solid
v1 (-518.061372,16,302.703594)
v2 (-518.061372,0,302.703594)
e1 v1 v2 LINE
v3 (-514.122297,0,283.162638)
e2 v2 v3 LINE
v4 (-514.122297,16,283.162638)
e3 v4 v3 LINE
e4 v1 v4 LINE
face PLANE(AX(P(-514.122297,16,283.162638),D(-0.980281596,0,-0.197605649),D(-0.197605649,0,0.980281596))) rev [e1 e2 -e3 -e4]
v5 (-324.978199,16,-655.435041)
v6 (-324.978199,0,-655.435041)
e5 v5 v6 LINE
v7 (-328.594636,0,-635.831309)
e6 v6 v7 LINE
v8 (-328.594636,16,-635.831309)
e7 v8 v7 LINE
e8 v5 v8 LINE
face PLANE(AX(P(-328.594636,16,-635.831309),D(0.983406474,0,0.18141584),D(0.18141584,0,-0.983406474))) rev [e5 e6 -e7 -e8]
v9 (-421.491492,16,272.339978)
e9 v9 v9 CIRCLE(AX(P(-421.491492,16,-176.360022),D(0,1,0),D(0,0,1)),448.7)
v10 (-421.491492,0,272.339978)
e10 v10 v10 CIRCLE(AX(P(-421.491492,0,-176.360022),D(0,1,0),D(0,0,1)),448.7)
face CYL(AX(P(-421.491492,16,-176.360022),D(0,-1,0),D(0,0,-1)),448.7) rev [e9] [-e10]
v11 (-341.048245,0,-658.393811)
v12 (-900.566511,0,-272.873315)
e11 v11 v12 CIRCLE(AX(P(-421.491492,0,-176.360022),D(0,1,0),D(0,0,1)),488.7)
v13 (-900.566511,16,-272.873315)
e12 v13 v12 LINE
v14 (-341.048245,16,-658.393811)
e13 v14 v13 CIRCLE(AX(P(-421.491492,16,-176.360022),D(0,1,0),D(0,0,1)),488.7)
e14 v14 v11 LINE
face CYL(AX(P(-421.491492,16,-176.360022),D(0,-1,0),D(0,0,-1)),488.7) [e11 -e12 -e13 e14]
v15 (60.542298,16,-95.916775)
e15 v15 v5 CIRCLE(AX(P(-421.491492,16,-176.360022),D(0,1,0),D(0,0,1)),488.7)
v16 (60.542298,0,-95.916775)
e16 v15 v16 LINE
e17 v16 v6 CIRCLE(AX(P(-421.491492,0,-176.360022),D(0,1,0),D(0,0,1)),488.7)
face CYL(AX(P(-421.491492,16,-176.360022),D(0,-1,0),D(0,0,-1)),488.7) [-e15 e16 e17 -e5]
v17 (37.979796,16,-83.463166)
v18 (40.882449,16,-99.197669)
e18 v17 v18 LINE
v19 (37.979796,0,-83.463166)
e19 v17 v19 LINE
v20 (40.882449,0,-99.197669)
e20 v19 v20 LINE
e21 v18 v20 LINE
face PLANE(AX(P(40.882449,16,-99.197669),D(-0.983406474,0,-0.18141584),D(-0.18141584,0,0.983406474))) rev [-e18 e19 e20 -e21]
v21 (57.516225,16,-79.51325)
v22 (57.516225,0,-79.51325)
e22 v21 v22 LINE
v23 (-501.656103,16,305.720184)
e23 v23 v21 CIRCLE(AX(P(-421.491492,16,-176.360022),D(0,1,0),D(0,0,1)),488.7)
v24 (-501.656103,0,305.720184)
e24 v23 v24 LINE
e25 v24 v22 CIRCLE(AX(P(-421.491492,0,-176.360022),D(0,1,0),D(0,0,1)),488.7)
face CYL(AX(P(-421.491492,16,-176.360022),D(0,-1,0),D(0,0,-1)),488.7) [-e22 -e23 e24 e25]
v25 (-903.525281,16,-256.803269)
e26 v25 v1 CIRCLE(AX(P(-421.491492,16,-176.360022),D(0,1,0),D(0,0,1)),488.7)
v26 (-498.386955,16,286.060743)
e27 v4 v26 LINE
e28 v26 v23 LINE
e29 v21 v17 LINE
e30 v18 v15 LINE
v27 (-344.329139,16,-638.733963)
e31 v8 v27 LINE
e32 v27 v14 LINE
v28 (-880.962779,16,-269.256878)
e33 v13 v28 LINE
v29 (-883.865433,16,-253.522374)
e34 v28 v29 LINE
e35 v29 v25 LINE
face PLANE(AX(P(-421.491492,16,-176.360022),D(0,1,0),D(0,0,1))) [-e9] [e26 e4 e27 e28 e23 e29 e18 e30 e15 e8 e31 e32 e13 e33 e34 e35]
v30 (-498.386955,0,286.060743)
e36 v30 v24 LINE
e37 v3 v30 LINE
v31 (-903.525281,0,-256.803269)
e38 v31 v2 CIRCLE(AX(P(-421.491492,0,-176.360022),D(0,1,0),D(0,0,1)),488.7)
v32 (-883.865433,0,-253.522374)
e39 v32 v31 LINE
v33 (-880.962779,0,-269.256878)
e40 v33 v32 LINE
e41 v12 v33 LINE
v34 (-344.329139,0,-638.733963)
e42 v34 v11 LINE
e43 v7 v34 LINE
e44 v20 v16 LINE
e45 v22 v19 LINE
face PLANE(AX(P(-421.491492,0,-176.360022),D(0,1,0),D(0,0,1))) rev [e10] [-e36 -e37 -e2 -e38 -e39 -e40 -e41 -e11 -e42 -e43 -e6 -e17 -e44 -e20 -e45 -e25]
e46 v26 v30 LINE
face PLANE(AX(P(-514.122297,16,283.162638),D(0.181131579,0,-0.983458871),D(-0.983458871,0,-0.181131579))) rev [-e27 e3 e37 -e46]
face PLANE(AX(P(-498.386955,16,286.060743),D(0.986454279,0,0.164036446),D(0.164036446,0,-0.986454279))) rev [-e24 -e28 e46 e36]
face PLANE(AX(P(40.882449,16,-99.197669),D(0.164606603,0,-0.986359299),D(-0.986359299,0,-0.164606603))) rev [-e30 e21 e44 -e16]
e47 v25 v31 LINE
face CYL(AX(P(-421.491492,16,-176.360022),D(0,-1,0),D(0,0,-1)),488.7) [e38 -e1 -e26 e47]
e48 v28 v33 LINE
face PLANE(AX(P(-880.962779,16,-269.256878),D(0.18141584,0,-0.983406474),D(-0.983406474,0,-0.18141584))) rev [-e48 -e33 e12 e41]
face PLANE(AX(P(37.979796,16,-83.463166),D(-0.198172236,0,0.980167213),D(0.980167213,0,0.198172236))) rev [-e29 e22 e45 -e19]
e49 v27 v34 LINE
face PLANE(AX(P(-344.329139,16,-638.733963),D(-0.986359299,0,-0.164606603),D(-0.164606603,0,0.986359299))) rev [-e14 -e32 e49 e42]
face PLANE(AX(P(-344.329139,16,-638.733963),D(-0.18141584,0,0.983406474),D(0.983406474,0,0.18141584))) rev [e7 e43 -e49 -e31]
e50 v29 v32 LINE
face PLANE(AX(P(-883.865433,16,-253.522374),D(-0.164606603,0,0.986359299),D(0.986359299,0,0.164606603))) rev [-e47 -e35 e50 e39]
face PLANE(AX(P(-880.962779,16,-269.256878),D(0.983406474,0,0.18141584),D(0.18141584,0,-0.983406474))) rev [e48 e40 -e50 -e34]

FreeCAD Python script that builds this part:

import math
import FreeCAD as App
import Part
import Sketcher

V = App.Vector
Q = App.Units.Quantity

doc = App.newDocument("Part")
body = doc.addObject("PartDesign::Body", "Body")

sketch1 = body.newObject("Sketcher::SketchObject", "Sketch")
sketch1.AttachmentSupport = (doc.getObject("XZ_Plane"), [""])
sketch1.MapMode = "FlatFace"
sketch1.addGeometry(Part.LineSegment(V(-328.594636, -635.831309, 0), V(-344.329139, -638.733963, 0)), False)
sketch1.addGeometry(Part.LineSegment(V(-344.329139, -638.733963, 0), V(-341.048245, -658.393811, 0)), False)
sketch1.addGeometry(Part.ArcOfCircle(Part.Circle(V(-421.491492, -176.360022, 0), V(0, 0, 1), 488.7), math.radians(-168.609789), math.radians(-80.525618)), False)
sketch1.addGeometry(Part.LineSegment(V(-900.566511, -272.873315, 0), V(-880.962779, -269.256878, 0)), False)
sketch1.addGeometry(Part.LineSegment(V(-880.962779, -269.256878, 0), V(-883.865433, -253.522374, 0)), False)
sketch1.addGeometry(Part.LineSegment(V(-883.865433, -253.522374, 0), V(-903.525281, -256.803269, 0)), False)
sketch1.addGeometry(Part.ArcOfCircle(Part.Circle(V(-421.491492, -176.360022, 0), V(0, 0, 1), 488.7), math.radians(101.396979), math.radians(189.474382)), False)
sketch1.addGeometry(Part.LineSegment(V(-518.061372, 302.703594, 0), V(-514.122297, 283.162638, 0)), False)
sketch1.addGeometry(Part.LineSegment(V(-514.122297, 283.162638, 0), V(-498.386955, 286.060743, 0)), False)
sketch1.addGeometry(Part.LineSegment(V(-498.386955, 286.060743, 0), V(-501.656103, 305.720184, 0)), False)
sketch1.addGeometry(Part.ArcOfCircle(Part.Circle(V(-421.491492, -176.360022, 0), V(0, 0, 1), 488.7), math.radians(11.430097), math.radians(99.441264)), False)
sketch1.addGeometry(Part.LineSegment(V(57.516225, -79.51325, 0), V(37.979796, -83.463166, 0)), False)
sketch1.addGeometry(Part.LineSegment(V(37.979796, -83.463166, 0), V(40.882449, -99.197669, 0)), False)
sketch1.addGeometry(Part.LineSegment(V(40.882449, -99.197669, 0), V(60.542298, -95.916775, 0)), False)
sketch1.addGeometry(Part.ArcOfCircle(Part.Circle(V(-421.491492, -176.360022, 0), V(0, 0, 1), 488.7), math.radians(-78.609789), math.radians(9.474382)), False)
sketch1.addGeometry(Part.LineSegment(V(-324.978199, -655.435041, 0), V(-328.594636, -635.831309, 0)), False)
sketch1.addGeometry(Part.Circle(V(-421.491492, -176.360022, 0), V(0, 0, 1), 448.7), False)
sketch1.addConstraint(Sketcher.Constraint("Coincident", 0, 2, 1, 1))
sketch1.addConstraint(Sketcher.Constraint("Coincident", 1, 2, 2, 2))
sketch1.addConstraint(Sketcher.Constraint("Coincident", 2, 1, 3, 1))
sketch1.addConstraint(Sketcher.Constraint("Coincident", 3, 2, 4, 1))
sketch1.addConstraint(Sketcher.Constraint("Coincident", 4, 2, 5, 1))
sketch1.addConstraint(Sketcher.Constraint("Coincident", 5, 2, 6, 2))
sketch1.addConstraint(Sketcher.Constraint("Coincident", 6, 1, 7, 1))
sketch1.addConstraint(Sketcher.Constraint("Coincident", 7, 2, 8, 1))
sketch1.addConstraint(Sketcher.Constraint("Coincident", 8, 2, 9, 1))
sketch1.addConstraint(Sketcher.Constraint("Coincident", 9, 2, 10, 2))
sketch1.addConstraint(Sketcher.Constraint("Coincident", 10, 1, 11, 1))
sketch1.addConstraint(Sketcher.Constraint("Coincident", 11, 2, 12, 1))
sketch1.addConstraint(Sketcher.Constraint("Coincident", 12, 2, 13, 1))
sketch1.addConstraint(Sketcher.Constraint("Coincident", 13, 2, 14, 2))
sketch1.addConstraint(Sketcher.Constraint("Coincident", 14, 1, 15, 1))
sketch1.addConstraint(Sketcher.Constraint("Coincident", 15, 2, 0, 1))
sketch1.addConstraint(Sketcher.Constraint("Coincident", 6, 3, 2, 3))
sketch1.addConstraint(Sketcher.Constraint("Coincident", 10, 3, 2, 3))
sketch1.addConstraint(Sketcher.Constraint("Coincident", 14, 3, 2, 3))
sketch1.addConstraint(Sketcher.Constraint("Coincident", 16, 3, 2, 3))
sketch1.addConstraint(Sketcher.Constraint("Equal", 2, 6))
sketch1.addConstraint(Sketcher.Constraint("Equal", 6, 10))
sketch1.addConstraint(Sketcher.Constraint("Equal", 10, 14))
sketch1.addConstraint(Sketcher.Constraint("Parallel", 0, 3))
sketch1.addConstraint(Sketcher.Constraint("Perpendicular", 3, 4))
sketch1.addConstraint(Sketcher.Constraint("Perpendicular", 1, 5))
sketch1.addConstraint(Sketcher.Constraint("Parallel", 4, 12))
sketch1.addConstraint(Sketcher.Constraint("Parallel", 5, 13))
sketch1.addConstraint(Sketcher.Constraint("Parallel", 12, 15))
sketch1.addConstraint(Sketcher.Constraint("Equal", 0, 4))
sketch1.addConstraint(Sketcher.Constraint("Equal", 1, 5))
sketch1.addConstraint(Sketcher.Constraint("Equal", 4, 8))
sketch1.addConstraint(Sketcher.Constraint("Equal", 5, 11))
sketch1.addConstraint(Sketcher.Constraint("Equal", 8, 12))
sketch1.addConstraint(Sketcher.Constraint("Equal", 11, 13))
sketch1.addConstraint(Sketcher.Constraint("Equal", 3, 15))
sketch1.addConstraint(Sketcher.Constraint("Diameter", 16, Q("897.4 mm")))
sketch1.addConstraint(Sketcher.Constraint("Radius", 2, Q("488.7 mm")))
sketch1.addConstraint(Sketcher.Constraint("Distance", 0, Q("16 mm")))
sketch1.addConstraint(Sketcher.Constraint("Distance", 9, Q("19.929399 mm")))
sketch1.addConstraint(Sketcher.Constraint("DistanceX", 5, 2, 3, 2, Q("22.562502 mm")))
sketch1.addConstraint(Sketcher.Constraint("Distance", 1, Q("19.931731 mm")))
sketch1.addConstraint(Sketcher.Constraint("DistanceX", 2, 3, -1, 1, Q("421.491492 mm")))
sketch1.addConstraint(Sketcher.Constraint("DistanceY", 2, 3, -1, 1, Q("176.360022 mm")))
sketch1.addConstraint(Sketcher.Constraint("DistanceX", 0, 2, -1, 1, Q("344.329139 mm")))
sketch1.addConstraint(Sketcher.Constraint("DistanceY", 1, 2, -1, 1, Q("658.393811 mm")))
sketch1.addConstraint(Sketcher.Constraint("DistanceY", 10, 1, -1, 1, Q("79.51325 mm")))
sketch1.addConstraint(Sketcher.Constraint("DistanceX", 6, 1, 6, 3, Q("96.569881 mm")))
sketch1.addConstraint(Sketcher.Constraint("DistanceY", 6, 3, 7, 2, Q("459.52266 mm")))
sketch1.addConstraint(Sketcher.Constraint("DistanceX", 7, 2, 8, 2, Q("15.735342 mm")))
sketch1.addConstraint(Sketcher.Constraint("DistanceX", 6, 1, 9, 2, Q("16.40527 mm")))
pad1 = body.newObject("PartDesign::Pad", "Pad")
pad1.Profile = sketch1
pad1.Length = 16
pad1.Reversed = True

doc.recompute()
